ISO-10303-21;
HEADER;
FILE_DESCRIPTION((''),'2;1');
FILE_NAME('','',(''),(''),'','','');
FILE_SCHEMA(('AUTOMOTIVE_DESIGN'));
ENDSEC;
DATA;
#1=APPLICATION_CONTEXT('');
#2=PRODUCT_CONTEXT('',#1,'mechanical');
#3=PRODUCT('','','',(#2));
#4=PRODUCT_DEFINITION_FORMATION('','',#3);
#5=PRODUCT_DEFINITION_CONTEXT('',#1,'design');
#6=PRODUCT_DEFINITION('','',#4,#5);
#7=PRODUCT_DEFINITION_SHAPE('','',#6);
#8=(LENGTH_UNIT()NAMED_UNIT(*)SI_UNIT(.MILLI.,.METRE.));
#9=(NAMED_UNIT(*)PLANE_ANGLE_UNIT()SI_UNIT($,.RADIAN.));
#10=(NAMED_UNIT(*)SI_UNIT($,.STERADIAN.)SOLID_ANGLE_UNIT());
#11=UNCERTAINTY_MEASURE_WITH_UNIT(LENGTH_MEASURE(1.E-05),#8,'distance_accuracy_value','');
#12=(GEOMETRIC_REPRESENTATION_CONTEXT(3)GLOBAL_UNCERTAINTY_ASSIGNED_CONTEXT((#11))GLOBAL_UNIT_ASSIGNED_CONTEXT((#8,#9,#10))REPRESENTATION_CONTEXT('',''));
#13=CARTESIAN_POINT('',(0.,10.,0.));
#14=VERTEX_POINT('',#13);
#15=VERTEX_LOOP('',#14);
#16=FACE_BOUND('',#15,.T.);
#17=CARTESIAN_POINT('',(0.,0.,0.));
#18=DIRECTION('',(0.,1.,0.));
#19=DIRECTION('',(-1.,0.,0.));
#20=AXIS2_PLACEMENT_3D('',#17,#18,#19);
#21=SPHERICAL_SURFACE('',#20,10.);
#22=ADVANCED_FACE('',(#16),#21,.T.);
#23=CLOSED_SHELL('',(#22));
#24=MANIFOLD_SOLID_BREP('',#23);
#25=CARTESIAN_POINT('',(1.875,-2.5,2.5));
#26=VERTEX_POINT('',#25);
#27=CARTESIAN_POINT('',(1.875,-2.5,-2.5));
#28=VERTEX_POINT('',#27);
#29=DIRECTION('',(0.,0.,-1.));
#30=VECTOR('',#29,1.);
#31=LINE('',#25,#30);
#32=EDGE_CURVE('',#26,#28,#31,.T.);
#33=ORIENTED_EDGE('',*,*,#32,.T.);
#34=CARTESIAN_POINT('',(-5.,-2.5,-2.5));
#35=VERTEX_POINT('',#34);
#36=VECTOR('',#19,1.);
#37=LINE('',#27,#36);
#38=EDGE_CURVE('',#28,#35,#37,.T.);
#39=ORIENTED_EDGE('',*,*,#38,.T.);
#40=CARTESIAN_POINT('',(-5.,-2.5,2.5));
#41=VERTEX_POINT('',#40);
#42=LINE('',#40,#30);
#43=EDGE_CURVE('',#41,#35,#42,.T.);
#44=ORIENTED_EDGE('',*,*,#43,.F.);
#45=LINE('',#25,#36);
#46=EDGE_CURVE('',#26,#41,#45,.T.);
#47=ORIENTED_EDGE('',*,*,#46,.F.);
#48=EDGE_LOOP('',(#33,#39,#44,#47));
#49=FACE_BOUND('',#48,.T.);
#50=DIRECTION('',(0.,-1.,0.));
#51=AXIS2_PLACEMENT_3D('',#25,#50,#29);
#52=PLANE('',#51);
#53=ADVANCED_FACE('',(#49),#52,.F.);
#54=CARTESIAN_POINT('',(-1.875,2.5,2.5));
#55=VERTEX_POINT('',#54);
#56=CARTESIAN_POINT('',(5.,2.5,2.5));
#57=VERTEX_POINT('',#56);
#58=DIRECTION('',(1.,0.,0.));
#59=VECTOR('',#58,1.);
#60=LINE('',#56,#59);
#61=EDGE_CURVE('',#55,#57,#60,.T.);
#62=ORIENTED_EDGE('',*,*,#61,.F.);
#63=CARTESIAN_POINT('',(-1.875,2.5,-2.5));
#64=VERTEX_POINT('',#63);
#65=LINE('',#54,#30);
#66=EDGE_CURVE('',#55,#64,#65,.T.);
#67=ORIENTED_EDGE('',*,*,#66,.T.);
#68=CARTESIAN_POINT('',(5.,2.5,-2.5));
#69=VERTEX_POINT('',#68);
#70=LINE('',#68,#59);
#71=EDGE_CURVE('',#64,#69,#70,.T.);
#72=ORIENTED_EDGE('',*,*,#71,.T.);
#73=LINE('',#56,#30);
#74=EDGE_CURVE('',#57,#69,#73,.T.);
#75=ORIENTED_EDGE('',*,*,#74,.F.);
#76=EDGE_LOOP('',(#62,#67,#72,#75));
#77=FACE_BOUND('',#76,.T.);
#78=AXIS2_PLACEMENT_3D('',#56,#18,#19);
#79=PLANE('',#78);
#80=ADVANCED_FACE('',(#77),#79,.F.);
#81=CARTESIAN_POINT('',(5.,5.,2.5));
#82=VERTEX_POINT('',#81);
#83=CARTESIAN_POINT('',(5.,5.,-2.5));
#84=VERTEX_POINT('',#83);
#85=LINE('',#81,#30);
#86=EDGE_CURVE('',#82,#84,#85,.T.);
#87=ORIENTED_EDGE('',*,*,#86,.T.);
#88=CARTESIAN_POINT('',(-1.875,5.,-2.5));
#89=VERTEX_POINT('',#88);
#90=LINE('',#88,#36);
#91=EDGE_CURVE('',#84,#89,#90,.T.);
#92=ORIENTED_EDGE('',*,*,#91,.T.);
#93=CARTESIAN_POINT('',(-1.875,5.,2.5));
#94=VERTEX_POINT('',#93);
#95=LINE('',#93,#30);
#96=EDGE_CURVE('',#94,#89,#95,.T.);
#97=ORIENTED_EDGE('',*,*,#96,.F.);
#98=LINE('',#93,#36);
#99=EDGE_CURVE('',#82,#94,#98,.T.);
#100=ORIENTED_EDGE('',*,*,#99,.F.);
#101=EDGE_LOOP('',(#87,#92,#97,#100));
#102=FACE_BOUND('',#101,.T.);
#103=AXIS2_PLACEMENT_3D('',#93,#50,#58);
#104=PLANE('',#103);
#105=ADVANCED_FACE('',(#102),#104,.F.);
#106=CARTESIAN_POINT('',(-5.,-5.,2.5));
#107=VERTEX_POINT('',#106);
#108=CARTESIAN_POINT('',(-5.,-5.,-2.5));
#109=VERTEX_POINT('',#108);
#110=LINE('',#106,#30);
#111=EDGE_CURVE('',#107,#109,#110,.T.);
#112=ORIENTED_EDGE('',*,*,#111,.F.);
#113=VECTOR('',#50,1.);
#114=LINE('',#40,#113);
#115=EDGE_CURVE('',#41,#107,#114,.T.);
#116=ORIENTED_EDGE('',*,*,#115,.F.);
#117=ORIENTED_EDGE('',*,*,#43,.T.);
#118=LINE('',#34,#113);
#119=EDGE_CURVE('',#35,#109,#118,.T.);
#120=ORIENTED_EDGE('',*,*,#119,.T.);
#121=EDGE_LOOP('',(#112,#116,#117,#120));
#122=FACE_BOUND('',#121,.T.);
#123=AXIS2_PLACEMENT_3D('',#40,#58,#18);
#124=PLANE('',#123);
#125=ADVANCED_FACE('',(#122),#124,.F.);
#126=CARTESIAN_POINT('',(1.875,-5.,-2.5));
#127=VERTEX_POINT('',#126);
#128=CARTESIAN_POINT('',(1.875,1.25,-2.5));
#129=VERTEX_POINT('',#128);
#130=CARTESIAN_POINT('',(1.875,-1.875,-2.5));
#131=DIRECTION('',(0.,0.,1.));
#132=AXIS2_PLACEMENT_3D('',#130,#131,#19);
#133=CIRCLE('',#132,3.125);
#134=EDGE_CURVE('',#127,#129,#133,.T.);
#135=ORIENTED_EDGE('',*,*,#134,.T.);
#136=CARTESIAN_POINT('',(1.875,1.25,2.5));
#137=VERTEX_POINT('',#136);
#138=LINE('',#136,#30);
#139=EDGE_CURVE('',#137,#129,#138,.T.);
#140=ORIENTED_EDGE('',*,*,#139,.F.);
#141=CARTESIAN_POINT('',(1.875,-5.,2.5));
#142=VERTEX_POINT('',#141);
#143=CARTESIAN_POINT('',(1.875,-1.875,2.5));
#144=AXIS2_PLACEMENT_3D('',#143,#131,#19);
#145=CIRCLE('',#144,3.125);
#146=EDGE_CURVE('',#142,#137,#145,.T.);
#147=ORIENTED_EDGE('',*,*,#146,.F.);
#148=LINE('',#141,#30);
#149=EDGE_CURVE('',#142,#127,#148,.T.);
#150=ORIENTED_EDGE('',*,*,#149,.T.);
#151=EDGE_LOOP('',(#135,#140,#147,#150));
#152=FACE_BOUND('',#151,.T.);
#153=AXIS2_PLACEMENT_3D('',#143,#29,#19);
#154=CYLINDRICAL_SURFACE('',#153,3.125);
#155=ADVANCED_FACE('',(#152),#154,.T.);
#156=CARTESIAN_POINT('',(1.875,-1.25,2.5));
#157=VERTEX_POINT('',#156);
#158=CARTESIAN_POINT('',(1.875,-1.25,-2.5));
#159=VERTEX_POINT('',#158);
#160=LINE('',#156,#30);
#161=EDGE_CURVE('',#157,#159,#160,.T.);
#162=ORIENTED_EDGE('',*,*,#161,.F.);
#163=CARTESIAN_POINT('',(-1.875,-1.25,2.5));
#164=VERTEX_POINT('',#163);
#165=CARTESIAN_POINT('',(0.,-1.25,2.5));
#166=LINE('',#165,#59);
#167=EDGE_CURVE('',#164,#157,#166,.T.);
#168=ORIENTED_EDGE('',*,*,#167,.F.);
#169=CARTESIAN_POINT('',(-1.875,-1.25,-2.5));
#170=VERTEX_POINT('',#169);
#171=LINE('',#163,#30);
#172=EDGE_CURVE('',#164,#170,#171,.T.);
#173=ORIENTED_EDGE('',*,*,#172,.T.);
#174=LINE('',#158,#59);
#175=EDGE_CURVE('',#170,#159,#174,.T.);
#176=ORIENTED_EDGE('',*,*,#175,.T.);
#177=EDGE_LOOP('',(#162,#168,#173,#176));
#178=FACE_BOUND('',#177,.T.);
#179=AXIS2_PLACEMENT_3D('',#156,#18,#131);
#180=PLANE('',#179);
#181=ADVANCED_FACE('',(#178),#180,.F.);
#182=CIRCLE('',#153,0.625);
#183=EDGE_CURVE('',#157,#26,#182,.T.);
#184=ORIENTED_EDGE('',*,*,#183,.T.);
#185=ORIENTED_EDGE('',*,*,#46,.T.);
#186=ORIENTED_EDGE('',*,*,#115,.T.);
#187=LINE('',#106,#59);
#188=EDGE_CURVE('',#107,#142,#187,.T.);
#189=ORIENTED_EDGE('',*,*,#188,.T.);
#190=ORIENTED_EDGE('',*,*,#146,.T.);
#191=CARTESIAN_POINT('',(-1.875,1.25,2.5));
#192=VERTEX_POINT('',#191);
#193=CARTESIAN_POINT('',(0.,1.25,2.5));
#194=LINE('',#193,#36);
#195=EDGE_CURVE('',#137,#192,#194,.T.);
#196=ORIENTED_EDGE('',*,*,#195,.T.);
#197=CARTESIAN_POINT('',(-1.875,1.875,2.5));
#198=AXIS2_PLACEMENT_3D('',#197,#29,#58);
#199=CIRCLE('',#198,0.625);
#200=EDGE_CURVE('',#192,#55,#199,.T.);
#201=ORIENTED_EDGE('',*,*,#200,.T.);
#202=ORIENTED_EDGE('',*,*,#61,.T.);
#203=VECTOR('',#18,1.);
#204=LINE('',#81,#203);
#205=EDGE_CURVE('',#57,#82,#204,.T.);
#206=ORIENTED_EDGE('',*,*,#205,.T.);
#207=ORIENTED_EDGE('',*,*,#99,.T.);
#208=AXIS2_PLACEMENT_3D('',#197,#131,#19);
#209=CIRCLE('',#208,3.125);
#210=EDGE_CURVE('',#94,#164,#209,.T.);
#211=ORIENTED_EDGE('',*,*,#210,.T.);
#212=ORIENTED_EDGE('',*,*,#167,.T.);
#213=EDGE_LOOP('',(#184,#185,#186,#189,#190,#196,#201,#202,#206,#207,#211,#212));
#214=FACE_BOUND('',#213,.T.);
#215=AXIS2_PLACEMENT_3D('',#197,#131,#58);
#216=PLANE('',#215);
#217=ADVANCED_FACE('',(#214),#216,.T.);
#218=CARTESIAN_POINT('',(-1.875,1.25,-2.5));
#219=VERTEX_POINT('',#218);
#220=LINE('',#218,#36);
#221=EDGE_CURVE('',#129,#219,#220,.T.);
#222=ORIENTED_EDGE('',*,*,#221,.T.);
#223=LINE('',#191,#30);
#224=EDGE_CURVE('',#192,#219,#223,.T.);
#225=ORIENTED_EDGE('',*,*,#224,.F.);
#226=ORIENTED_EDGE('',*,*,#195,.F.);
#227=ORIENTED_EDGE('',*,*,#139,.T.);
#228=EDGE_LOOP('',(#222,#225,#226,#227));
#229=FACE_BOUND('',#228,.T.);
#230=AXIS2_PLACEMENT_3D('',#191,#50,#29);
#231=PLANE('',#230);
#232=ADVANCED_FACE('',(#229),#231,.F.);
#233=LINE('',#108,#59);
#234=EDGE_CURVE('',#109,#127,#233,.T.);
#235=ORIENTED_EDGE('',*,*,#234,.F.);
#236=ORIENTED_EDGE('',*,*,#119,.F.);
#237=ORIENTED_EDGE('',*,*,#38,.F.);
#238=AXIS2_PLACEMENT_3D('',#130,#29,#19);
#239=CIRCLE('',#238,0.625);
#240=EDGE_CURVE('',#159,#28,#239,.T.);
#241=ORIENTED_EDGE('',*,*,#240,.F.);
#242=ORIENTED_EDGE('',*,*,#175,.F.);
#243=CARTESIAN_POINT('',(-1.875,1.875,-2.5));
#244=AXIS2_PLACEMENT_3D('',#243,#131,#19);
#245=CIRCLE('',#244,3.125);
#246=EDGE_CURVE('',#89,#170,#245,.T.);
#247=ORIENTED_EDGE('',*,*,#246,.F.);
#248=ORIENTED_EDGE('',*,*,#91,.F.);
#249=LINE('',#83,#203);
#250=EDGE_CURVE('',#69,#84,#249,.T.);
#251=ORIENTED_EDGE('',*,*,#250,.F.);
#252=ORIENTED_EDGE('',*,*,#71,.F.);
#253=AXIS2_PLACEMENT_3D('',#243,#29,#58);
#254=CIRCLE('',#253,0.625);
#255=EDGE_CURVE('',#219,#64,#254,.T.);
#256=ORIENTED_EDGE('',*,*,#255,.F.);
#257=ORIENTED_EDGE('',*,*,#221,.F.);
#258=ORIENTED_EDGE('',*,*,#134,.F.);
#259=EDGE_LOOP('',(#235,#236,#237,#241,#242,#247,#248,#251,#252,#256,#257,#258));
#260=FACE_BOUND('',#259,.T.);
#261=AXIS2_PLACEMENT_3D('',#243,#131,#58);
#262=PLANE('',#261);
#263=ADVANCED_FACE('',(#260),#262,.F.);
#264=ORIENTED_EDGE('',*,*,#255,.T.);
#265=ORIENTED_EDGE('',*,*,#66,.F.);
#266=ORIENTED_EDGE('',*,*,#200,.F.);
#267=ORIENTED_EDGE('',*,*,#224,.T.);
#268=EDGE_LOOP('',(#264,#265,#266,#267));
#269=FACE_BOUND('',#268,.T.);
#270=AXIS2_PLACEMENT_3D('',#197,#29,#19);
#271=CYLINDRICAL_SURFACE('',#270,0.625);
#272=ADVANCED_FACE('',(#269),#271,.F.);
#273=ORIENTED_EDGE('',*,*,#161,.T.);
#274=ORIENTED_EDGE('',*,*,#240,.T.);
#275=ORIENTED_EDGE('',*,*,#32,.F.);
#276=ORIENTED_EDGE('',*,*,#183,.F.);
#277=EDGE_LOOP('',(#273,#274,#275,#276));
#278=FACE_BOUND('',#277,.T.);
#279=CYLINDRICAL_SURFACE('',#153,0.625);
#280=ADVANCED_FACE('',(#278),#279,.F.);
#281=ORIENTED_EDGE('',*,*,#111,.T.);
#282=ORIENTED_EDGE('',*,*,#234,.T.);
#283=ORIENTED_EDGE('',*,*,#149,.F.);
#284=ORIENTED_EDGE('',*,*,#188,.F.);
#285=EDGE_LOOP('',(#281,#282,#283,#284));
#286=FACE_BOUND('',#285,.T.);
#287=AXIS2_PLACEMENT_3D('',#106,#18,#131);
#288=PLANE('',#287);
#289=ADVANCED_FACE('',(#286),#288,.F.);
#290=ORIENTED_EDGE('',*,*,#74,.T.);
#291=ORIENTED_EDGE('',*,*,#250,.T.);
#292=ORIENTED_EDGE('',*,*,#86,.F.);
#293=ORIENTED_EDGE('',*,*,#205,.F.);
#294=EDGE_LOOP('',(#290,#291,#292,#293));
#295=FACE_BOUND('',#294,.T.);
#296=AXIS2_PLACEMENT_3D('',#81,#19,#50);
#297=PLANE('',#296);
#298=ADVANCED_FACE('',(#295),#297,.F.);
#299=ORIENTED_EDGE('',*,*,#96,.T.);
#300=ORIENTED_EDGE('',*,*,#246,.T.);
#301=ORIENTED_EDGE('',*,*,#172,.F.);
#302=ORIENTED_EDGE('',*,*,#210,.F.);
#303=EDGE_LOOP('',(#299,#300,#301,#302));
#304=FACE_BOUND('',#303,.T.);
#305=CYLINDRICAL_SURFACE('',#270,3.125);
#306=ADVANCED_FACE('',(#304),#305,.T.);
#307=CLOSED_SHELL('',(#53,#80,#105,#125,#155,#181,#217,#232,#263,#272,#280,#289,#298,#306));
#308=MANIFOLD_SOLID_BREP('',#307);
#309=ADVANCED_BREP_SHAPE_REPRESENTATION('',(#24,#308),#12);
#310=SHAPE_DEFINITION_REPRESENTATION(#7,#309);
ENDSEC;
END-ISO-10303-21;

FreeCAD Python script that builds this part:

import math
import FreeCAD as App
import Part
import Sketcher

V = App.Vector
Q = App.Units.Quantity

doc = App.newDocument("Part")
body = doc.addObject("PartDesign::Body", "Body")

sketch1 = body.newObject("Sketcher::SketchObject", "Sketch")
sketch1.AttachmentSupport = (doc.getObject("XY_Plane"), [""])
sketch1.MapMode = "FlatFace"
sketch1.addGeometry([
    Part.LineSegment(V(-1.9, -1.2, 0), V(1.9, -1.2, 0)),
    Part.ArcOfCircle(Part.Circle(V(1.9, -1.9, 0), V(0, 0, 1), 0.6), math.radians(-90), math.radians(90)),
    Part.LineSegment(V(1.9, -2.5, 0), V(-5, -2.5, 0)),
    Part.LineSegment(V(-5, -2.5, 0), V(-5, -5, 0)),
    Part.LineSegment(V(-5, -5, 0), V(1.9, -5, 0)),
    Part.ArcOfCircle(Part.Circle(V(1.9, -1.9, 0), V(0, 0, 1), 3.1), math.radians(-90), math.radians(90)),
    Part.LineSegment(V(1.9, 1.2, 0), V(-1.9, 1.2, 0)),
    Part.ArcOfCircle(Part.Circle(V(-1.9, 1.9, 0), V(0, 0, 1), 0.6), math.radians(90), math.radians(270)),
    Part.LineSegment(V(-1.9, 2.5, 0), V(5, 2.5, 0)),
    Part.LineSegment(V(5, 2.5, 0), V(5, 5, 0)),
    Part.LineSegment(V(5, 5, 0), V(-1.9, 5, 0)),
    Part.ArcOfCircle(Part.Circle(V(-1.9, 1.9, 0), V(0, 0, 1), 3.1), math.radians(90), math.radians(270)),
], False)
sketch1.addConstraint([
    Sketcher.Constraint("Tangent", 0, 2, 1, 2),
    Sketcher.Constraint("Tangent", 1, 1, 2, 1),
    Sketcher.Constraint("Coincident", 2, 2, 3, 1),
    Sketcher.Constraint("Coincident", 3, 2, 4, 1),
    Sketcher.Constraint("Tangent", 4, 2, 5, 1),
    Sketcher.Constraint("Tangent", 5, 2, 6, 1),
    Sketcher.Constraint("Tangent", 6, 2, 7, 2),
    Sketcher.Constraint("Tangent", 7, 1, 8, 1),
    Sketcher.Constraint("Coincident", 8, 2, 9, 1),
    Sketcher.Constraint("Coincident", 9, 2, 10, 1),
    Sketcher.Constraint("Tangent", 10, 2, 11, 1),
    Sketcher.Constraint("Tangent", 11, 2, 0, 1),
    Sketcher.Constraint("Horizontal", 0),
    Sketcher.Constraint("Horizontal", 2),
    Sketcher.Constraint("Vertical", 3),
    Sketcher.Constraint("Horizontal", 4),
    Sketcher.Constraint("Horizontal", 6),
    Sketcher.Constraint("Horizontal", 8),
    Sketcher.Constraint("Vertical", 9),
    Sketcher.Constraint("Horizontal", 10),
    Sketcher.Constraint("Coincident", 5, 3, 1, 3),
    Sketcher.Constraint("Coincident", 11, 3, 7, 3),
    Sketcher.Constraint("Equal", 1, 7),
    Sketcher.Constraint("Symmetric", 1, 3, 7, 3, -1, 1),
    Sketcher.Constraint("Equal", 4, 8),
    Sketcher.Constraint("DistanceY", 3, 2, 3, 1, Q("2.5 mm")),
    Sketcher.Constraint("DistanceX", 2, 2, -1, 1, Q("5 mm")),
    Sketcher.Constraint("DistanceY", 3, 2, -1, 1, Q("5 mm")),
    Sketcher.Constraint("DistanceX", 0, 1, 0, 2, Q("3.75 mm")),
])
pad1 = body.newObject("PartDesign::Pad", "Pad")
pad1.Profile = sketch1
pad1.Length = 5
pad1.Midplane = True
body2 = doc.addObject("PartDesign::Body", "Body001")

sketch2 = body2.newObject("Sketcher::SketchObject", "Sketch001")
sketch2.AttachmentSupport = (doc.getObject("XY_Plane001"), [""])
sketch2.MapMode = "FlatFace"
sketch2.addGeometry([
    Part.LineSegment(V(0, -10, 0), V(0, 10, 0)),
    Part.ArcOfCircle(Part.Circle(V(0, 0, 0), V(0, 0, 1), 10), math.radians(90), math.radians(270)),
], False)
sketch2.addConstraint([
    Sketcher.Constraint("Coincident", 0, 1, 1, 2),
    Sketcher.Constraint("Coincident", 1, 1, 0, 2),
    Sketcher.Constraint("Vertical", 0),
    Sketcher.Constraint("Coincident", 1, 3, -1, 1),
    Sketcher.Constraint("PointOnObject", 0, 1, -2),
    Sketcher.Constraint("Radius", 1, Q("10 mm")),
])
revolution = body2.newObject("PartDesign::Revolution", "Revolution")
revolution.Profile = sketch2
revolution.ReferenceAxis = (sketch2, ["V_Axis"])
revolution.Angle = 360

doc.recompute()
